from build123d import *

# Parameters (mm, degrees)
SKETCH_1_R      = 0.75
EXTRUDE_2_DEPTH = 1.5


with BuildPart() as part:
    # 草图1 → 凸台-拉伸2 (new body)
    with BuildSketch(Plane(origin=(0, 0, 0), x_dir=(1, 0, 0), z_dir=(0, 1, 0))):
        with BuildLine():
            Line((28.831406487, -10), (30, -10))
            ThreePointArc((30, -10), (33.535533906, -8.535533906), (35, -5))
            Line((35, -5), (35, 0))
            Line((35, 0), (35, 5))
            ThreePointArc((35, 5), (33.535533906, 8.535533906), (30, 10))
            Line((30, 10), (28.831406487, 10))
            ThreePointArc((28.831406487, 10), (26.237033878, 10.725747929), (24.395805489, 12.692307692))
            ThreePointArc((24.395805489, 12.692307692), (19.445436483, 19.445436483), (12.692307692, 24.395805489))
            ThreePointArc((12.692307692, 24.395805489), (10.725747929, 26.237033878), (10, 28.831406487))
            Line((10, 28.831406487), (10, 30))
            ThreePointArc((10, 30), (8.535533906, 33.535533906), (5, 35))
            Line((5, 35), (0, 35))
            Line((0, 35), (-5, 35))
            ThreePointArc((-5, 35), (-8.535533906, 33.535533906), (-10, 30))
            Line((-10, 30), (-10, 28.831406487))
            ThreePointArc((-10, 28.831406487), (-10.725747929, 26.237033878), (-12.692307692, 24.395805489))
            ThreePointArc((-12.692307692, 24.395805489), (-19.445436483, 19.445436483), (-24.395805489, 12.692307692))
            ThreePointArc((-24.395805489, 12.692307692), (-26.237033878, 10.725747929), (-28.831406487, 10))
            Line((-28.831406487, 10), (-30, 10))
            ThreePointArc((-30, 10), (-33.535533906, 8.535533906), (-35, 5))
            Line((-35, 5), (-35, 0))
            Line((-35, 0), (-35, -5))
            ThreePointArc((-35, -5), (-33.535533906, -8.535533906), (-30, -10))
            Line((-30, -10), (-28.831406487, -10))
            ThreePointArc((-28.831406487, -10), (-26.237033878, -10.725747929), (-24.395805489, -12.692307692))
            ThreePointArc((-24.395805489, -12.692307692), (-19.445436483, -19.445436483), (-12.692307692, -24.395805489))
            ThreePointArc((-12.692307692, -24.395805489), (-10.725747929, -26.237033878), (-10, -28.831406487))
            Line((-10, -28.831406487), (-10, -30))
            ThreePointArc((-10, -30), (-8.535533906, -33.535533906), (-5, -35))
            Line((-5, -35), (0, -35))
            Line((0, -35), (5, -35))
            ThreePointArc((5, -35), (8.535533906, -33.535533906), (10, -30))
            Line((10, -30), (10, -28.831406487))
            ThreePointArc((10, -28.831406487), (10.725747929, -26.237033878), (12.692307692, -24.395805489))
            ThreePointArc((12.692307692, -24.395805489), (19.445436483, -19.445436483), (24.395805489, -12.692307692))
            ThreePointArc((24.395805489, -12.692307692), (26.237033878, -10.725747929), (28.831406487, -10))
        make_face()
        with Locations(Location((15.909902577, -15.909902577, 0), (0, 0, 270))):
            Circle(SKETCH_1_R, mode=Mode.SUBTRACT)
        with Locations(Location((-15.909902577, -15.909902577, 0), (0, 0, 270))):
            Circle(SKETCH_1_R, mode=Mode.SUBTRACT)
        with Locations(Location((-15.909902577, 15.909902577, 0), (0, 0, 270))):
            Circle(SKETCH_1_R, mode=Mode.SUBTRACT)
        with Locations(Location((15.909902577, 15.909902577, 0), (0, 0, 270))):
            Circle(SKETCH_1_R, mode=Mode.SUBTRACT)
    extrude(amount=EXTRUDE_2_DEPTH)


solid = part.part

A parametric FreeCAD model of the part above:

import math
import FreeCAD as App
import Part
import Sketcher

doc = App.newDocument("Part")
body = doc.addObject("PartDesign::Body", "Body")

# Sketch on XZ plane
sketch1 = body.newObject("Sketcher::SketchObject", "Sketch")
sketch1.AttachmentSupport = (doc.getObject("XZ_Plane"), [""])
sketch1.MapMode = "FlatFace"
sketch1.addGeometry([
    Part.LineSegment(App.Vector(28.8, 10, 0), App.Vector(30, 10, 0)),  # 0
    Part.ArcOfCircle(Part.Circle(App.Vector(30, 5, 0), App.Vector(0, 0, 1), 5), math.radians(0), math.radians(90)),  # 1
    Part.LineSegment(App.Vector(35, 5, 0), App.Vector(35, -5, 0)),  # 2
    Part.ArcOfCircle(Part.Circle(App.Vector(30, -5, 0), App.Vector(0, 0, 1), 5), math.radians(-90), math.radians(0)),  # 3
    Part.LineSegment(App.Vector(30, -10, 0), App.Vector(28.8, -10, 0)),  # 4
    Part.ArcOfCircle(Part.Circle(App.Vector(28.8, -15, 0), App.Vector(0, 0, 1), 5), math.radians(90), math.radians(153)),  # 5
    Part.ArcOfCircle(Part.Circle(App.Vector(0, 0, 0), App.Vector(0, 0, 1), 27.5), math.radians(-63), math.radians(-27)),  # 6
    Part.ArcOfCircle(Part.Circle(App.Vector(15, -28.8, 0), App.Vector(0, 0, 1), 5), math.radians(117), math.radians(180)),  # 7
    Part.LineSegment(App.Vector(10, -28.8, 0), App.Vector(10, -30, 0)),  # 8
    Part.ArcOfCircle(Part.Circle(App.Vector(5, -30, 0), App.Vector(0, 0, 1), 5), math.radians(-90), math.radians(0)),  # 9
    Part.LineSegment(App.Vector(5, -35, 0), App.Vector(-5, -35, 0)),  # 10
    Part.ArcOfCircle(Part.Circle(App.Vector(-5, -30, 0), App.Vector(0, 0, 1), 5), math.radians(180), math.radians(270)),  # 11
    Part.LineSegment(App.Vector(-10, -30, 0), App.Vector(-10, -28.8, 0)),  # 12
    Part.ArcOfCircle(Part.Circle(App.Vector(-15, -28.8, 0), App.Vector(0, 0, 1), 5), math.radians(0), math.radians(63)),  # 13
    Part.ArcOfCircle(Part.Circle(App.Vector(0, 0, 0), App.Vector(0, 0, 1), 27.5), math.radians(-153), math.radians(-117)),  # 14
    Part.ArcOfCircle(Part.Circle(App.Vector(-28.8, -15, 0), App.Vector(0, 0, 1), 5), math.radians(27), math.radians(90)),  # 15
    Part.LineSegment(App.Vector(-28.8, -10, 0), App.Vector(-30, -10, 0)),  # 16
    Part.ArcOfCircle(Part.Circle(App.Vector(-30, -5, 0), App.Vector(0, 0, 1), 5), math.radians(180), math.radians(270)),  # 17
    Part.LineSegment(App.Vector(-35, -5, 0), App.Vector(-35, 5, 0)),  # 18
    Part.ArcOfCircle(Part.Circle(App.Vector(-30, 5, 0), App.Vector(0, 0, 1), 5), math.radians(90), math.radians(180)),  # 19
    Part.LineSegment(App.Vector(-30, 10, 0), App.Vector(-28.8, 10, 0)),  # 20
    Part.ArcOfCircle(Part.Circle(App.Vector(-28.8, 15, 0), App.Vector(0, 0, 1), 5), math.radians(-90), math.radians(-27)),  # 21
    Part.ArcOfCircle(Part.Circle(App.Vector(0, 0, 0), App.Vector(0, 0, 1), 27.5), math.radians(117), math.radians(153)),  # 22
    Part.ArcOfCircle(Part.Circle(App.Vector(-15, 28.8, 0), App.Vector(0, 0, 1), 5), math.radians(-63), math.radians(0)),  # 23
    Part.LineSegment(App.Vector(-10, 28.8, 0), App.Vector(-10, 30, 0)),  # 24
    Part.ArcOfCircle(Part.Circle(App.Vector(-5, 30, 0), App.Vector(0, 0, 1), 5), math.radians(90), math.radians(180)),  # 25
    Part.LineSegment(App.Vector(-5, 35, 0), App.Vector(5, 35, 0)),  # 26
    Part.ArcOfCircle(Part.Circle(App.Vector(5, 30, 0), App.Vector(0, 0, 1), 5), math.radians(0), math.radians(90)),  # 27
    Part.LineSegment(App.Vector(10, 30, 0), App.Vector(10, 28.8, 0)),  # 28
    Part.ArcOfCircle(Part.Circle(App.Vector(15, 28.8, 0), App.Vector(0, 0, 1), 5), math.radians(180), math.radians(243)),  # 29
    Part.ArcOfCircle(Part.Circle(App.Vector(0, 0, 0), App.Vector(0, 0, 1), 27.5), math.radians(27), math.radians(63)),  # 30
    Part.ArcOfCircle(Part.Circle(App.Vector(28.8, 15, 0), App.Vector(0, 0, 1), 5), math.radians(-153), math.radians(-90)),  # 31
    Part.Circle(App.Vector(-15.9, 15.9, 0), App.Vector(0, 0, 1), 0.8),  # 32
    Part.Circle(App.Vector(15.9, 15.9, 0), App.Vector(0, 0, 1), 0.8),  # 33
    Part.Circle(App.Vector(-15.9, -15.9, 0), App.Vector(0, 0, 1), 0.8),  # 34
    Part.Circle(App.Vector(15.9, -15.9, 0), App.Vector(0, 0, 1), 0.8),  # 35
], False)
sketch1.addConstraint([
    Sketcher.Constraint("Tangent", 0, 2, 1, 2),
    Sketcher.Constraint("Tangent", 1, 1, 2, 1),
    Sketcher.Constraint("Tangent", 2, 2, 3, 2),
    Sketcher.Constraint("Tangent", 3, 1, 4, 1),
    Sketcher.Constraint("Tangent", 4, 2, 5, 1),
    Sketcher.Constraint("Tangent", 5, 2, 6, 2),
    Sketcher.Constraint("Tangent", 6, 1, 7, 1),
    Sketcher.Constraint("Tangent", 7, 2, 8, 1),
    Sketcher.Constraint("Tangent", 8, 2, 9, 2),
    Sketcher.Constraint("Tangent", 9, 1, 10, 1),
    Sketcher.Constraint("Tangent", 10, 2, 11, 2),
    Sketcher.Constraint("Tangent", 11, 1, 12, 1),
    Sketcher.Constraint("Tangent", 12, 2, 13, 1),
    Sketcher.Constraint("Tangent", 13, 2, 14, 2),
    Sketcher.Constraint("Tangent", 14, 1, 15, 1),
    Sketcher.Constraint("Tangent", 15, 2, 16, 1),
    Sketcher.Constraint("Tangent", 16, 2, 17, 2),
    Sketcher.Constraint("Tangent", 17, 1, 18, 1),
    Sketcher.Constraint("Tangent", 18, 2, 19, 2),
    Sketcher.Constraint("Tangent", 19, 1, 20, 1),
    Sketcher.Constraint("Tangent", 20, 2, 21, 1),
    Sketcher.Constraint("Tangent", 21, 2, 22, 2),
    Sketcher.Constraint("Tangent", 22, 1, 23, 1),
    Sketcher.Constraint("Tangent", 23, 2, 24, 1),
    Sketcher.Constraint("Tangent", 24, 2, 25, 2),
    Sketcher.Constraint("Tangent", 25, 1, 26, 1),
    Sketcher.Constraint("Tangent", 26, 2, 27, 2),
    Sketcher.Constraint("Tangent", 27, 1, 28, 1),
    Sketcher.Constraint("Tangent", 28, 2, 29, 1),
    Sketcher.Constraint("Tangent", 29, 2, 30, 2),
    Sketcher.Constraint("Tangent", 30, 1, 31, 1),
    Sketcher.Constraint("Tangent", 31, 2, 0, 1),
    Sketcher.Constraint("Horizontal", 0),
    Sketcher.Constraint("Vertical", 2),
    Sketcher.Constraint("Horizontal", 4),
    Sketcher.Constraint("Vertical", 8),
    Sketcher.Constraint("Horizontal", 10),
    Sketcher.Constraint("Vertical", 12),
    Sketcher.Constraint("Horizontal", 16),
    Sketcher.Constraint("Vertical", 18),
    Sketcher.Constraint("Horizontal", 20),
    Sketcher.Constraint("Vertical", 24),
    Sketcher.Constraint("Horizontal", 26),
    Sketcher.Constraint("Vertical", 28),
    Sketcher.Constraint("Coincident", 6, 3, -1, 1),
    Sketcher.Constraint("Coincident", 14, 3, -1, 1),
    Sketcher.Constraint("Coincident", 22, 3, -1, 1),
    Sketcher.Constraint("Coincident", 30, 3, -1, 1),
    Sketcher.Constraint("Equal", 1, 3),
    Sketcher.Constraint("Equal", 3, 5),
    Sketcher.Constraint("Equal", 5, 7),
    Sketcher.Constraint("Equal", 7, 9),
    Sketcher.Constraint("Equal", 9, 11),
    Sketcher.Constraint("Equal", 11, 13),
    Sketcher.Constraint("Equal", 6, 14),
    Sketcher.Constraint("Equal", 13, 15),
    Sketcher.Constraint("Equal", 15, 17),
    Sketcher.Constraint("Equal", 17, 19),
    Sketcher.Constraint("Equal", 19, 21),
    Sketcher.Constraint("Equal", 14, 22),
    Sketcher.Constraint("Equal", 21, 23),
    Sketcher.Constraint("Equal", 23, 25),
    Sketcher.Constraint("Equal", 25, 27),
    Sketcher.Constraint("Equal", 27, 29),
    Sketcher.Constraint("Equal", 22, 30),
    Sketcher.Constraint("Equal", 29, 31),
    Sketcher.Constraint("Equal", 32, 33),
    Sketcher.Constraint("Equal", 33, 34),
    Sketcher.Constraint("Equal", 34, 35),
    Sketcher.Constraint("Symmetric", 1, 3, 17, 3, -1, 1),
    Sketcher.Constraint("Symmetric", 9, 3, 25, 3, -1, 1),
    Sketcher.Constraint("Symmetric", 33, 3, 34, 3, -1, 1),
    Sketcher.Constraint("Symmetric", 32, 3, 35, 3, -1, 1),
    Sketcher.Constraint("Symmetric", 32, 3, 33, 3, -2),
    Sketcher.Constraint("Horizontal", 7, 3, 13, 3),
    Sketcher.Constraint("Horizontal", 5, 3, 15, 3),
    Sketcher.Constraint("Horizontal", 1, 3, 19, 3),
    Sketcher.Constraint("Horizontal", 23, 3, 29, 3),
    Sketcher.Constraint("Equal", 26, 2),
    Sketcher.Constraint("Equal", 20, 8),
    Sketcher.Constraint("Radius", 1, 5.0),
    Sketcher.Constraint("Diameter", 32, 1.5),
    Sketcher.Constraint("Radius", 6, 27.5),
    Sketcher.Constraint("DistanceX", 10, 2, 10, 1, 10.0),
    Sketcher.Constraint("DistanceX", -1, 1, 1, 3, 30.0),
    Sketcher.Constraint("DistanceX", 32, 3, -1, 1, 15.909903),
    Sketcher.Constraint("DistanceY", -1, 1, 32, 3, 15.909903),
])
pad1 = body.newObject("PartDesign::Pad", "Pad")
pad1.Profile = sketch1
pad1.Length = 1.5
pad1.Reversed = True

doc.recompute()
